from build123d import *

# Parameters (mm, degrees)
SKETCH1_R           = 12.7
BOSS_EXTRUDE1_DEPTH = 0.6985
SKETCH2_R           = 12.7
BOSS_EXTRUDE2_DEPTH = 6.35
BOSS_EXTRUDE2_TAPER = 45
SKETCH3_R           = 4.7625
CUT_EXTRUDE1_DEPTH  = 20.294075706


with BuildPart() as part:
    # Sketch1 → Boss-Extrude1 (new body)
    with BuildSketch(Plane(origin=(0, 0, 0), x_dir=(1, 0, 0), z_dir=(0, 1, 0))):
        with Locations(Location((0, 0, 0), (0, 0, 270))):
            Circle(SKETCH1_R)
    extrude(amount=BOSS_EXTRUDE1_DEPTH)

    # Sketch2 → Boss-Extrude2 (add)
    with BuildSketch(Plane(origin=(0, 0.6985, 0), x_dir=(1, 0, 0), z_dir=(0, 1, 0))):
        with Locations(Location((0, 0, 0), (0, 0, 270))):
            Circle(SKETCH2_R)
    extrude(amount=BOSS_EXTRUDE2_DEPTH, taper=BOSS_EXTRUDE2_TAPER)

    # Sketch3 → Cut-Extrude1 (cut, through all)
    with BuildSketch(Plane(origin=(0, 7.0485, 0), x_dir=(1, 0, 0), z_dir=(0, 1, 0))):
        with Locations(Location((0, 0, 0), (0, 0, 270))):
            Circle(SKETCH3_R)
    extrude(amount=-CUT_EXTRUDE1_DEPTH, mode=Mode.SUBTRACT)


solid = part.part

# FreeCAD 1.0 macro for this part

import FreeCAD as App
import Part
import Sketcher

V = App.Vector
Q = App.Units.Quantity

doc = App.newDocument("Part")
body = doc.addObject("PartDesign::Body", "Body")

sketch1 = body.newObject("Sketcher::SketchObject", "Sketch")
sketch1.AttachmentSupport = (doc.getObject("XZ_Plane"), [""])
sketch1.MapMode = "FlatFace"
sketch1.addGeometry(Part.Circle(V(0, 0, 0), V(0, 0, 1), 13), False)
sketch1.addConstraint(Sketcher.Constraint("Coincident", 0, 3, -1, 1))
sketch1.addConstraint(Sketcher.Constraint("Diameter", 0, Q("1 in")))
pad1 = body.newObject("PartDesign::Pad", "Pad")
pad1.Profile = sketch1
pad1.Length = Q("0.0275 in")
pad1.Reversed = True

sketch2 = body.newObject("Sketcher::SketchObject", "Sketch001")
sketch2.AttachmentSupport = (doc.getObject("XZ_Plane"), [""])
sketch2.MapMode = "FlatFace"
sketch2.AttachmentOffset = App.Placement(V(0, 0, -0.0275 * 25.4), App.Rotation())
sketch2.addGeometry(Part.Circle(V(0, 0, 0), V(0, 0, 1), 13), False)
sketch2.addConstraint(Sketcher.Constraint("Coincident", 0, 3, -1, 1))
sketch2.addConstraint(Sketcher.Constraint("Diameter", 0, Q("1 in")))
pad2 = body.newObject("PartDesign::Pad", "Pad001")
pad2.Profile = sketch2
pad2.Length = Q("0.25 in")
pad2.Reversed = True
pad2.TaperAngle = -45

sketch3 = body.newObject("Sketcher::SketchObject", "Sketch002")
sketch3.AttachmentSupport = (doc.getObject("XZ_Plane"), [""])
sketch3.MapMode = "FlatFace"
sketch3.AttachmentOffset = App.Placement(V(0, 0, -0.2775 * 25.4), App.Rotation())
sketch3.addGeometry(Part.Circle(V(0, 0, 0), V(0, 0, 1), 4.8), False)
sketch3.addConstraint(Sketcher.Constraint("Coincident", 0, 3, -1, 1))
sketch3.addConstraint(Sketcher.Constraint("Diameter", 0, Q("0.375 in")))
pocket1 = body.newObject("PartDesign::Pocket", "Pocket")
pocket1.Profile = sketch3
pocket1.Type = "ThroughAll"
pocket1.Reversed = True

doc.recompute()
